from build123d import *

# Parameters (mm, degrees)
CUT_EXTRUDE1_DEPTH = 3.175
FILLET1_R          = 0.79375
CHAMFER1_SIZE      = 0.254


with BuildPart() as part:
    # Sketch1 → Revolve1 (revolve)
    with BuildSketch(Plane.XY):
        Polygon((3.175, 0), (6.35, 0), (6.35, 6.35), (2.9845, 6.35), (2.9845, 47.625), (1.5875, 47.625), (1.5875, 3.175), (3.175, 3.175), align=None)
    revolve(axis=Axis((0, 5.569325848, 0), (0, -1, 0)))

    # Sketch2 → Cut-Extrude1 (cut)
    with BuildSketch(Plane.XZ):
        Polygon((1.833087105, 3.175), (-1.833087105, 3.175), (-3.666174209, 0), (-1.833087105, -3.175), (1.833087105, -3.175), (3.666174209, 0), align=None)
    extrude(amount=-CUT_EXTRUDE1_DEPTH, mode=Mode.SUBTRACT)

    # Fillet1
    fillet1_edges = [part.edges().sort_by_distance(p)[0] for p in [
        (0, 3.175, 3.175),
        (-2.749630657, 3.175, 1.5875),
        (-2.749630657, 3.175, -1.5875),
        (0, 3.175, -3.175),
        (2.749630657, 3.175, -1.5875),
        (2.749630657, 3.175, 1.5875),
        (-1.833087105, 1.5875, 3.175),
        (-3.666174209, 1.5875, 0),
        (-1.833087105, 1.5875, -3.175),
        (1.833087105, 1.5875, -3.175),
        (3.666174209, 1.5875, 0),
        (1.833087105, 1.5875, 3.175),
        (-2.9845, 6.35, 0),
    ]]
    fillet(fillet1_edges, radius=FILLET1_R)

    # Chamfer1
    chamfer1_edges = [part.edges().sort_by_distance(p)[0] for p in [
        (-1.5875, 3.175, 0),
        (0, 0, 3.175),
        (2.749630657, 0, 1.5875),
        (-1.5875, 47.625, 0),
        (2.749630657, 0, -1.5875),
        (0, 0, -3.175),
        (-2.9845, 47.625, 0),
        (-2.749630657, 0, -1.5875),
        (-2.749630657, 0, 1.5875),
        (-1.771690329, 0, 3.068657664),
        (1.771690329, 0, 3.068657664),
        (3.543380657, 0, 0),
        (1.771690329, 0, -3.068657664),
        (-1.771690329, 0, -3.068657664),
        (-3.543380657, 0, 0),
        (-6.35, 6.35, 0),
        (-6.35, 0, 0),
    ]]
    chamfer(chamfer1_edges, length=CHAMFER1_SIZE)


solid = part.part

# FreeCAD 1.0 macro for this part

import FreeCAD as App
import Part
import Sketcher
Q = App.Units.Quantity


def edges_at(feature, points):
    """Names of the edges that pass closest to the given points."""
    edges = feature.Shape.Edges
    near = lambda p: min(range(len(edges)), key=lambda i: edges[i].distToShape(Part.Vertex(*p))[0])
    return sorted({f"Edge{near(p) + 1}" for p in points})


def add_polygon(sketch, points):
    """Adds a closed chain of lines whose ends are joined by coincident constraints."""
    first, n = sketch.GeometryCount, len(points)
    for a, b in zip(points, points[1:] + points[:1]):
        sketch.addGeometry(Part.LineSegment(App.Vector(*a, 0), App.Vector(*b, 0)), False)
    for i in range(n):
        sketch.addConstraint(Sketcher.Constraint("Coincident", first + i, 2, first + (i + 1) % n, 1))

doc = App.newDocument("Part")
body = doc.addObject("PartDesign::Body", "Body")

sketch1 = body.newObject("Sketcher::SketchObject", "Sketch")
sketch1.AttachmentSupport = (doc.getObject("XY_Plane"), [""])
sketch1.MapMode = "FlatFace"
add_polygon(sketch1, [(3.2, 0), (6.3, 0), (6.3, 6.3), (3, 6.3), (3, 47.6), (1.6, 47.6), (1.6, 3.2), (3.2, 3.2)])
sketch1.addConstraint(Sketcher.Constraint("Horizontal", 0))
sketch1.addConstraint(Sketcher.Constraint("Vertical", 1))
sketch1.addConstraint(Sketcher.Constraint("Horizontal", 2))
sketch1.addConstraint(Sketcher.Constraint("Vertical", 3))
sketch1.addConstraint(Sketcher.Constraint("Horizontal", 4))
sketch1.addConstraint(Sketcher.Constraint("Vertical", 5))
sketch1.addConstraint(Sketcher.Constraint("Horizontal", 6))
sketch1.addConstraint(Sketcher.Constraint("Vertical", 7))
sketch1.addConstraint(Sketcher.Constraint("PointOnObject", 0, 2, -1))
sketch1.addConstraint(Sketcher.Constraint("Equal", 0, 7))
sketch1.addConstraint(Sketcher.Constraint("DistanceY", 1, 1, 1, 2, Q("0.25 in")))
sketch1.addConstraint(Sketcher.Constraint("DistanceY", 5, 2, 5, 1, Q("1.75 in")))
sketch1.addConstraint(Sketcher.Constraint("DistanceX", 0, 1, 0, 2, Q("0.125 in")))
sketch1.addConstraint(Sketcher.Constraint("DistanceX", 4, 2, 4, 1, Q("0.055 in")))
sketch1.addConstraint(Sketcher.Constraint("DistanceX", 6, 1, 6, 2, Q("0.0625 in")))
sketch1.addConstraint(Sketcher.Constraint("DistanceX", -1, 1, 0, 2, Q("0.25 in")))
revolution = body.newObject("PartDesign::Revolution", "Revolution")
revolution.Profile = sketch1
revolution.ReferenceAxis = (sketch1, ["V_Axis"])
revolution.Angle = 360

sketch2 = body.newObject("Sketcher::SketchObject", "Sketch001")
sketch2.AttachmentSupport = (doc.getObject("XZ_Plane"), [""])
sketch2.MapMode = "FlatFace"
add_polygon(sketch2, [(1.8, 3.2), (-1.8, 3.2), (-3.7, 0), (-1.8, -3.2), (1.8, -3.2), (3.7, 0)])
sketch2.addConstraint(Sketcher.Constraint("Horizontal", 0))
sketch2.addConstraint(Sketcher.Constraint("Horizontal", 3))
sketch2.addConstraint(Sketcher.Constraint("Symmetric", 0, 2, 3, 2, -1, 1))
sketch2.addConstraint(Sketcher.Constraint("Symmetric", 1, 2, 4, 2, -1, 1))
sketch2.addConstraint(Sketcher.Constraint("PointOnObject", 1, 2, -1))
sketch2.addConstraint(Sketcher.Constraint("Parallel", 2, 5))
sketch2.addConstraint(Sketcher.Constraint("Vertical", 0, 2, 2, 2))
sketch2.addConstraint(Sketcher.Constraint("Angle", 1, Q("-120 deg")))
sketch2.addConstraint(Sketcher.Constraint("DistanceY", 2, 2, 0, 2, Q("0.25 in")))
sketch2.addConstraint(Sketcher.Constraint("DistanceX", 0, 2, 0, 1, 3.666174))
pocket1 = body.newObject("PartDesign::Pocket", "Pocket")
pocket1.Profile = sketch2
pocket1.Length = Q("0.125 in")
doc.recompute()

fillet = body.newObject("PartDesign::Fillet", "Fillet")
fillet.Base = (pocket1, edges_at(pocket1, [
    (0, 3.175, 3.175),
    (-2.75, 3.175, 1.587),
    (-2.75, 3.175, -1.587),
    (0, 3.175, -3.175),
    (2.75, 3.175, -1.587),
    (2.75, 3.175, 1.587),
    (-1.833, 1.587, 3.175),
    (-3.666, 1.587, 0),
    (-1.833, 1.587, -3.175),
    (1.833, 1.587, -3.175),
    (3.666, 1.587, 0),
    (1.833, 1.587, 3.175),
    (-2.985, 6.35, 0),
]))
fillet.Radius = Q("0.03125 in")
doc.recompute()

chamfer = body.newObject("PartDesign::Chamfer", "Chamfer")
chamfer.Base = (fillet, edges_at(fillet, [
    (-1.587, 3.175, 0),
    (0, 0, 3.175),
    (2.75, 0, 1.587),
    (-1.587, 47.625, 0),
    (2.75, 0, -1.587),
    (0, 0, -3.175),
    (-2.985, 47.625, 0),
    (-2.75, 0, -1.587),
    (-2.75, 0, 1.587),
    (-1.772, 0, 3.069),
    (1.772, 0, 3.069),
    (3.543, 0, 0),
    (1.772, 0, -3.069),
    (-1.772, 0, -3.069),
    (-3.543, 0, 0),
    (-6.35, 6.35, 0),
    (-6.35, 0, 0),
]))
chamfer.Size = Q("0.01 in")

doc.recompute()
